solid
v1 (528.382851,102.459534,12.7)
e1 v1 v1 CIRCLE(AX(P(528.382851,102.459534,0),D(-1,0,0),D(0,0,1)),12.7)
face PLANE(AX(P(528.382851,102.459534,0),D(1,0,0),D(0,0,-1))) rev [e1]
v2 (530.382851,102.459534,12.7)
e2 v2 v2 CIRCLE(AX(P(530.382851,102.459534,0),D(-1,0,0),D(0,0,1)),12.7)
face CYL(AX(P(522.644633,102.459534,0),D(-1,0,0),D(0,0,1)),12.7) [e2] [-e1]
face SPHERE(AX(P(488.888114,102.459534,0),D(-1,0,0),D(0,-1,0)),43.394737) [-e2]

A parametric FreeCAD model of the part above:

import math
import FreeCAD as App
import Part
import Sketcher

doc = App.newDocument("Part")
body = doc.addObject("PartDesign::Body", "Body")

# Sketch on XY plane
sketch1 = body.newObject("Sketcher::SketchObject", "Sketch")
sketch1.AttachmentSupport = (doc.getObject("XY_Plane"), [""])
sketch1.MapMode = "FlatFace"
sketch1.addGeometry(Part.LineSegment(App.Vector(528.382851, 115.159534, 0), App.Vector(528.382851, 102.459534, 0)), False)
sketch1.addGeometry(Part.LineSegment(App.Vector(528.382851, 102.459534, 0), App.Vector(532.282851, 102.459534, 0)), False)
sketch1.addGeometry(Part.ArcOfCircle(Part.Circle(App.Vector(488.888114, 102.459534, 0), App.Vector(0, 0, 1), 43.394737), math.radians(0), math.radians(17.017407)), False)
sketch1.addGeometry(Part.LineSegment(App.Vector(530.382851, 115.159534, 0), App.Vector(528.382851, 115.159534, 0)), False)
sketch1.addGeometry(Part.LineSegment(App.Vector(488.888114, 102.459534, 0), App.Vector(532.282851, 102.459534, 0)), True)  # axis
sketch1.addConstraint(Sketcher.Constraint("Coincident", 0, 2, 1, 1))
sketch1.addConstraint(Sketcher.Constraint("Coincident", 1, 2, 2, 1))
sketch1.addConstraint(Sketcher.Constraint("Coincident", 2, 2, 3, 1))
sketch1.addConstraint(Sketcher.Constraint("Coincident", 3, 2, 0, 1))
sketch1.addConstraint(Sketcher.Constraint("Vertical", 0))
sketch1.addConstraint(Sketcher.Constraint("Horizontal", 1))
sketch1.addConstraint(Sketcher.Constraint("Horizontal", 3))
sketch1.addConstraint(Sketcher.Constraint("Horizontal", 4))
sketch1.addConstraint(Sketcher.Constraint("Coincident", 4, 1, 2, 3))
sketch1.addConstraint(Sketcher.Constraint("Coincident", 4, 2, 1, 2))
sketch1.addConstraint(Sketcher.Constraint("DistanceX", 3, 2, 3, 1, 2.0))
sketch1.addConstraint(Sketcher.Constraint("DistanceX", 1, 1, 1, 2, 3.9))
sketch1.addConstraint(Sketcher.Constraint("DistanceY", 0, 2, 0, 1, 12.7))
sketch1.addConstraint(Sketcher.Constraint("DistanceX", -1, 1, 0, 2, 528.382851))
sketch1.addConstraint(Sketcher.Constraint("DistanceY", -1, 1, 2, 3, 102.459534))
revolution = body.newObject("PartDesign::Revolution", "Revolution")
revolution.Profile = sketch1
revolution.ReferenceAxis = (sketch1, ["Axis0"])
revolution.Angle = 360

doc.recompute()
